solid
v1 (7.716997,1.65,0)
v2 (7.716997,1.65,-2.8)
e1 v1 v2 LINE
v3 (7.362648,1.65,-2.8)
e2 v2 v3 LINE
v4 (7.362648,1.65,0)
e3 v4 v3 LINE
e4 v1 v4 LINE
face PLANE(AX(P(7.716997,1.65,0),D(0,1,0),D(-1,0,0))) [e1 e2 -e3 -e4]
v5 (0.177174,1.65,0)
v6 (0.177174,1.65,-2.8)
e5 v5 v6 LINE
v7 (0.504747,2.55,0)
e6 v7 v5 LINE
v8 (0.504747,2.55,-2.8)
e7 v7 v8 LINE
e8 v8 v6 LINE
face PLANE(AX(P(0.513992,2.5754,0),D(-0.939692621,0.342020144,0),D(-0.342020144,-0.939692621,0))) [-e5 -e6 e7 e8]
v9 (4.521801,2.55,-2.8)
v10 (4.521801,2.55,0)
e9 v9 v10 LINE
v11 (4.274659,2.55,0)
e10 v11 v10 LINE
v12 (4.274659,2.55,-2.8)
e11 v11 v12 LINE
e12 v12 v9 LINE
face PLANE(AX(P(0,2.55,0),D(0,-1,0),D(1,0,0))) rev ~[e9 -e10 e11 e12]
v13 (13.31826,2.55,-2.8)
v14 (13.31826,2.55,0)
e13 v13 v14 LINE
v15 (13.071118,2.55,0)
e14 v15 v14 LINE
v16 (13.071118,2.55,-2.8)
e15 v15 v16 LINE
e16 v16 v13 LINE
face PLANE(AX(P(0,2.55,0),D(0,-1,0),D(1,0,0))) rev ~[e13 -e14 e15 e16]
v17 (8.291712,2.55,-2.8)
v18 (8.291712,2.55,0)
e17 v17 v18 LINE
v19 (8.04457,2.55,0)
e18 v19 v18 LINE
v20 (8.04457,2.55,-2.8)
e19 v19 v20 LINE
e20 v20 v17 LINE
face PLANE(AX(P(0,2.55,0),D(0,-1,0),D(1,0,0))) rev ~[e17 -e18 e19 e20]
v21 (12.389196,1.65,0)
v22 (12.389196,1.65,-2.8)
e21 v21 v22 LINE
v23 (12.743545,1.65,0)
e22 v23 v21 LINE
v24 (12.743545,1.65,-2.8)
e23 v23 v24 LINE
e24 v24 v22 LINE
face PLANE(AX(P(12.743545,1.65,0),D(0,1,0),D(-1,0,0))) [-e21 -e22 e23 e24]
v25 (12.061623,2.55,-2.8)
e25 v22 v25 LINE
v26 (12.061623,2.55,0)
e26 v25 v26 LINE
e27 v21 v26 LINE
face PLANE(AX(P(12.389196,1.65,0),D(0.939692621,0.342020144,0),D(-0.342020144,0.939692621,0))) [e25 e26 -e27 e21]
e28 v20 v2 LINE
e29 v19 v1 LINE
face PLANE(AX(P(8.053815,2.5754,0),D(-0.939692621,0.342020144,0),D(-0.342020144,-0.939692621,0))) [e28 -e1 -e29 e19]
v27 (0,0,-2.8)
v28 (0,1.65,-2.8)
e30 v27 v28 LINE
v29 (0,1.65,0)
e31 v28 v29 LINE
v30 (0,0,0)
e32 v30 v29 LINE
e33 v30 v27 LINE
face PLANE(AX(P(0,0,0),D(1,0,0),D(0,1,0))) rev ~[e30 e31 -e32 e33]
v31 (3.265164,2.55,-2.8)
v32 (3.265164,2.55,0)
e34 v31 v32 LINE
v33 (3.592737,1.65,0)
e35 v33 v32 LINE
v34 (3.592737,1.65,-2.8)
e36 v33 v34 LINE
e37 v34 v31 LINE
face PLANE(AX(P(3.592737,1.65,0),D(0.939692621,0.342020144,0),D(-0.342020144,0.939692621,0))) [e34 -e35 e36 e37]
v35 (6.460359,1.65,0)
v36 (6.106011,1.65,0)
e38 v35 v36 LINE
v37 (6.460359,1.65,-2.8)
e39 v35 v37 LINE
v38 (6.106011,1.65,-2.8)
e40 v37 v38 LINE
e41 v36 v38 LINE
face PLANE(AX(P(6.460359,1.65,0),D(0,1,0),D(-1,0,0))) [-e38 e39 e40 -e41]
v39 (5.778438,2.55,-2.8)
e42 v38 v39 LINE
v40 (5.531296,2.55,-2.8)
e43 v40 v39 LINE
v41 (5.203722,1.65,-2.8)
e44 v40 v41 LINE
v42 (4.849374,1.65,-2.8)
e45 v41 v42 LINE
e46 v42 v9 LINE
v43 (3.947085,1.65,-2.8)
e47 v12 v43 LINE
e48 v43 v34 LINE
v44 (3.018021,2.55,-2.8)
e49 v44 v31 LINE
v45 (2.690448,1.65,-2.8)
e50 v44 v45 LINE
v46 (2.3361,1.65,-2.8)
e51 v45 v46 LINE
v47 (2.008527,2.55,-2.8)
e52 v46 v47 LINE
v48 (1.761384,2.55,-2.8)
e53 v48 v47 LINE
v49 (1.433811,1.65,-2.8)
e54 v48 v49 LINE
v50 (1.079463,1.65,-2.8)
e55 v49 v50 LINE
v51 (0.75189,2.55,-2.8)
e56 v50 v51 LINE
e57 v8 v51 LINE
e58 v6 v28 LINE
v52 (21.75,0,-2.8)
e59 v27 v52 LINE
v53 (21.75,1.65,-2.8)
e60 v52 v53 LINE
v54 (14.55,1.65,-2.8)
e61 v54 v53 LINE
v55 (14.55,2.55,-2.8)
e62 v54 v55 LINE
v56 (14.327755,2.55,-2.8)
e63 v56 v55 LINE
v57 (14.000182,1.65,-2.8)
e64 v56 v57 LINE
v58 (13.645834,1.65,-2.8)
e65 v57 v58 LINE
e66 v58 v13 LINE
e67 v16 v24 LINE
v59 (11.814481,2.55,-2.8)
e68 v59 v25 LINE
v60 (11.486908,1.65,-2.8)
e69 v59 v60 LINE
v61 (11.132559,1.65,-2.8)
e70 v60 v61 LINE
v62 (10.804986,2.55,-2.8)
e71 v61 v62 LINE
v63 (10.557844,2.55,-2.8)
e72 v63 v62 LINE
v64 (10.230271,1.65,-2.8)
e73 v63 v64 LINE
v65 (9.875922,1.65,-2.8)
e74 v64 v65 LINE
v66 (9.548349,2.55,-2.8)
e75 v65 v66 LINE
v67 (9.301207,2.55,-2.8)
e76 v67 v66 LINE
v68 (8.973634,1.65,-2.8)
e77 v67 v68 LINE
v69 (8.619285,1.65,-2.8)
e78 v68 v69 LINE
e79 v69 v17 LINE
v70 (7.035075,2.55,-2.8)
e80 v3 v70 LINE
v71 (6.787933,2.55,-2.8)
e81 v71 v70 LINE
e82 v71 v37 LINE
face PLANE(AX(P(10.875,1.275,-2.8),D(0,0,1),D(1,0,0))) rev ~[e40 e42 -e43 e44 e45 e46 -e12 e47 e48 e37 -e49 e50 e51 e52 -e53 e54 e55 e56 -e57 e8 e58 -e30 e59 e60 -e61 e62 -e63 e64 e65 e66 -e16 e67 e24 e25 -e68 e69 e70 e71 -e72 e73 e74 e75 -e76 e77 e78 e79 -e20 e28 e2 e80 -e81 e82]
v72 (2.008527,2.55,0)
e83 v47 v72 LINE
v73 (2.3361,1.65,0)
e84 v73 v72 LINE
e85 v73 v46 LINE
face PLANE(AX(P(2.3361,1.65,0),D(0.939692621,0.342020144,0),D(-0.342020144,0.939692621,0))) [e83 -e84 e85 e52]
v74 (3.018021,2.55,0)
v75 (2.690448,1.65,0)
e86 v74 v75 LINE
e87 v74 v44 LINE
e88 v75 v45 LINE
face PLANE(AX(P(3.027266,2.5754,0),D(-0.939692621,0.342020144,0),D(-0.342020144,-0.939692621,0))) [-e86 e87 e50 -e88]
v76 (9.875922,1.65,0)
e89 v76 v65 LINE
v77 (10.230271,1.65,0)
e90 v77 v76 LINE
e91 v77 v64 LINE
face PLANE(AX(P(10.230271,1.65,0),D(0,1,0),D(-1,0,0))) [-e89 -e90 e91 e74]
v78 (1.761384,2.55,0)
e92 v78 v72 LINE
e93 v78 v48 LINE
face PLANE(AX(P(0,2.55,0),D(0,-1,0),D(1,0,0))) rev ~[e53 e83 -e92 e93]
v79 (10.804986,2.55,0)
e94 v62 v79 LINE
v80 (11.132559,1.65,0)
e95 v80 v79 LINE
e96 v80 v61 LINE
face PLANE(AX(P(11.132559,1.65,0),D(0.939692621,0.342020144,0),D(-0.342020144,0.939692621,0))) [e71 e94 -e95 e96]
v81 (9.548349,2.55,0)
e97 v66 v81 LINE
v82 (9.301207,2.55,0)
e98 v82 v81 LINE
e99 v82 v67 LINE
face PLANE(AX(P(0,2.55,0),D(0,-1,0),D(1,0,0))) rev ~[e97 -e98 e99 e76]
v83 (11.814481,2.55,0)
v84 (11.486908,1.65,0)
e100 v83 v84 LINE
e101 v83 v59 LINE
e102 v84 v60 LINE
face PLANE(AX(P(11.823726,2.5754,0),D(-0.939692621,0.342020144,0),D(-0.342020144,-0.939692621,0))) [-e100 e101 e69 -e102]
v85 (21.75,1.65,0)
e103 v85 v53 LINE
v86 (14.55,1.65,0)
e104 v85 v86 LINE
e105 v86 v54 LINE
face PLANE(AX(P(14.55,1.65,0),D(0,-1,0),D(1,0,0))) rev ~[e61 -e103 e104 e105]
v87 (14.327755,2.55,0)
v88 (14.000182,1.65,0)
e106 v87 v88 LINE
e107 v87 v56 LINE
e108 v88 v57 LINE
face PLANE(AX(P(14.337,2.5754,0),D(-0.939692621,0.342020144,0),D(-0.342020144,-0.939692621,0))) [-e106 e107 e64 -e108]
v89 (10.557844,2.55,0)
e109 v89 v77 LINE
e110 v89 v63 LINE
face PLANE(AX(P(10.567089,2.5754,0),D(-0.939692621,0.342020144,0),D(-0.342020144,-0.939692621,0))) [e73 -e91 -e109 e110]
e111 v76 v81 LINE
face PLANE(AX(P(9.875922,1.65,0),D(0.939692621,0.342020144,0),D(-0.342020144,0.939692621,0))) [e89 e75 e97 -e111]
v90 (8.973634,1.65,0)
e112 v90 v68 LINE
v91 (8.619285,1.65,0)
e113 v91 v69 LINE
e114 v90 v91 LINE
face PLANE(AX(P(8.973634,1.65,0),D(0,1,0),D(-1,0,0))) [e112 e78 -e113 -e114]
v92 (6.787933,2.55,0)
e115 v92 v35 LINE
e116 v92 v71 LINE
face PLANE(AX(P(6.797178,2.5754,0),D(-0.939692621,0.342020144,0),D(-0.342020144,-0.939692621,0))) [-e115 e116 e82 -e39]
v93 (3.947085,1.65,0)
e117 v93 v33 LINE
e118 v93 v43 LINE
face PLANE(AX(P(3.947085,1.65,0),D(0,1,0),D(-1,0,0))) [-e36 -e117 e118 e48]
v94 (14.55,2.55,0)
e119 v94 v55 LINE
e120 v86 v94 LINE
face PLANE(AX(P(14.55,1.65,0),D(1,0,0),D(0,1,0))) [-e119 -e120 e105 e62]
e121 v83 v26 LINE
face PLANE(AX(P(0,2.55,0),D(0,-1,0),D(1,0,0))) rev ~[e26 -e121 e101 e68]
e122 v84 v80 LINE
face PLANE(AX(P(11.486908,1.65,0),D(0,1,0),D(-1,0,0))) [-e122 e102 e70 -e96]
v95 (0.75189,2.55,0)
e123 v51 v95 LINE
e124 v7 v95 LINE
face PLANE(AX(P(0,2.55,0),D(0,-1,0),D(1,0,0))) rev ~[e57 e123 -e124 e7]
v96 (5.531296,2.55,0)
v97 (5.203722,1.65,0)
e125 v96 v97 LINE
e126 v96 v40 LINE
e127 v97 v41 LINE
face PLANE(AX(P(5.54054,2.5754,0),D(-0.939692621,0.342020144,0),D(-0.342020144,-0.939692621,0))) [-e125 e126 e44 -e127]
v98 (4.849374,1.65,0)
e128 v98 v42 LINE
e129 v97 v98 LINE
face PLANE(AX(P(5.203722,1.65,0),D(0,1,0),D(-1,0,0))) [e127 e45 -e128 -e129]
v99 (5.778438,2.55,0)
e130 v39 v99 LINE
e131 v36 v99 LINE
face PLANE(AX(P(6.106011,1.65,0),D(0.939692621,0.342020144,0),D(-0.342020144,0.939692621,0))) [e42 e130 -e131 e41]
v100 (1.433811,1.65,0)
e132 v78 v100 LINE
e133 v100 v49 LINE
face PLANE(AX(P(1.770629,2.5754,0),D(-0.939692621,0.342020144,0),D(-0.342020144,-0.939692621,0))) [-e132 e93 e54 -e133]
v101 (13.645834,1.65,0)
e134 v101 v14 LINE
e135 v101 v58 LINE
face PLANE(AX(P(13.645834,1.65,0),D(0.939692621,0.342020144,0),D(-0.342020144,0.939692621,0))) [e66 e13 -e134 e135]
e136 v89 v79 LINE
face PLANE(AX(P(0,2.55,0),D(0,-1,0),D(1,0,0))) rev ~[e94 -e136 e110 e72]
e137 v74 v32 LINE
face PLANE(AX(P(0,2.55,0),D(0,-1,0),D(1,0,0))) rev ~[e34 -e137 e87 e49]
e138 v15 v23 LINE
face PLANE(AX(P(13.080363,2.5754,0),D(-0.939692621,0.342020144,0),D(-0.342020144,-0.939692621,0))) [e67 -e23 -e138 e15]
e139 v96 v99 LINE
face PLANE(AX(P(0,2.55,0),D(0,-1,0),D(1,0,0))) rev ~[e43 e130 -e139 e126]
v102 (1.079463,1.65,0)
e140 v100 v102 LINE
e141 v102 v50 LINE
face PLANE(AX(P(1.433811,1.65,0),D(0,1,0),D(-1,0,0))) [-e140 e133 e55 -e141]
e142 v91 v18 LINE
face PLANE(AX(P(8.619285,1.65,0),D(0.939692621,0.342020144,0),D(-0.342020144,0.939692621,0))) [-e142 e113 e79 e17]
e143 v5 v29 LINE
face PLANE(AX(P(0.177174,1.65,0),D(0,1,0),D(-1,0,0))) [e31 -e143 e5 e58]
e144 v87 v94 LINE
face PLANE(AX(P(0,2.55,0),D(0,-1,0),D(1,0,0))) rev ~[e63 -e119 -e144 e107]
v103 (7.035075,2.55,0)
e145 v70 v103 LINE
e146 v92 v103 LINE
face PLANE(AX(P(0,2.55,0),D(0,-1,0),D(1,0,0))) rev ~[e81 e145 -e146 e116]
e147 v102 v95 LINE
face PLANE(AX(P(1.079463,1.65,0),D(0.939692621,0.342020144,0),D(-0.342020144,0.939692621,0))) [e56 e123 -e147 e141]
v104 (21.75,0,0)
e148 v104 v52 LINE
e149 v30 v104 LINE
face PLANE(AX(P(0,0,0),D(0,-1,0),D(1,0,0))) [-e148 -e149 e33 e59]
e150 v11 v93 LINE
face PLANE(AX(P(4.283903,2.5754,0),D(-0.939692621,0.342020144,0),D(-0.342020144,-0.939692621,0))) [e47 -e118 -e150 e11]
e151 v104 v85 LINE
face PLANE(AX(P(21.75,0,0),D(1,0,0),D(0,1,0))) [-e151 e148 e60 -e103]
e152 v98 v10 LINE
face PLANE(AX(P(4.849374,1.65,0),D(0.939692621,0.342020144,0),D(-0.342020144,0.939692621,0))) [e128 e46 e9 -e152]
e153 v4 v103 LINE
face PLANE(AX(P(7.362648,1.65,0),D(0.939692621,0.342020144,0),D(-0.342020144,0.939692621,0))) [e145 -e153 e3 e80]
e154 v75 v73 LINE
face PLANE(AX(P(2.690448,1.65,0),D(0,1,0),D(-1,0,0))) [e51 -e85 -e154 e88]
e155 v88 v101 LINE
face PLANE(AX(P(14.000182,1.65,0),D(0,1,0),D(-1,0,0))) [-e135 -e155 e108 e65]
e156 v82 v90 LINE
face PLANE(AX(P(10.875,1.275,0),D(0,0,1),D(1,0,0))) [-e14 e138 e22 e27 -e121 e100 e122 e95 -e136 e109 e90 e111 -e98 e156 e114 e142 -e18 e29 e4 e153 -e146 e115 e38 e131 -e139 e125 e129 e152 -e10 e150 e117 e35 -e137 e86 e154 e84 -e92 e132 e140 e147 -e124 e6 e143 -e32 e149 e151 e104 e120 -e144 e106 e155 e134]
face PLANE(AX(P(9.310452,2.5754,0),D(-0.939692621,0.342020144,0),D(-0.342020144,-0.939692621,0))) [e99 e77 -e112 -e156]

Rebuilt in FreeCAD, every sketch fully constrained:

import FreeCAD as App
import Part
import Sketcher
from FreeCAD import Vector
Q = App.Units.Quantity

doc = App.newDocument("Part")
body = doc.addObject("PartDesign::Body", "Body")

sketch1 = body.newObject("Sketcher::SketchObject", "Sketch")
sketch1.AttachmentSupport = (doc.getObject("XY_Plane"), [""])
sketch1.MapMode = "FlatFace"
sketch1.addGeometry([
    Part.LineSegment(Vector(0, 2.5, 0), Vector(0, 0, 0)),
    Part.LineSegment(Vector(0, 0, 0), Vector(21.8, 0, 0)),
    Part.LineSegment(Vector(21.8, 0, 0), Vector(21.8, 2.5, 0)),
    Part.LineSegment(Vector(21.8, 2.5, 0), Vector(0, 2.5, 0)),
], False)
sketch1.addConstraint([
    Sketcher.Constraint("Coincident", 0, 2, 1, 1),
    Sketcher.Constraint("Coincident", 1, 2, 2, 1),
    Sketcher.Constraint("Coincident", 2, 2, 3, 1),
    Sketcher.Constraint("Coincident", 3, 2, 0, 1),
    Sketcher.Constraint("Vertical", 0),
    Sketcher.Constraint("Horizontal", 1),
    Sketcher.Constraint("Vertical", 2),
    Sketcher.Constraint("Horizontal", 3),
    Sketcher.Constraint("Coincident", 0, 2, -1, 1),
    Sketcher.Constraint("DistanceX", 1, 1, 1, 2, Q("21.75 mm")),
    Sketcher.Constraint("DistanceY", 0, 2, 0, 1, Q("2.55 mm")),
])
pad1 = body.newObject("PartDesign::Pad", "Pad")
pad1.Profile = sketch1
pad1.Length = 2.8
pad1.Reversed = True

sketch2 = body.newObject("Sketcher::SketchObject", "Sketch001")
sketch2.AttachmentSupport = (doc.getObject("XY_Plane"), [""])
sketch2.MapMode = "FlatFace"
sketch2.addGeometry([
    Part.LineSegment(Vector(-0.18, 1.65, 0), Vector(0.18, 1.65, 0)),
    Part.LineSegment(Vector(0.18, 1.65, 0), Vector(0.51, 2.58, 0)),
    Part.LineSegment(Vector(0.51, 2.58, 0), Vector(-0.51, 2.58, 0)),
    Part.LineSegment(Vector(-0.51, 2.58, 0), Vector(-0.18, 1.65, 0)),
], False)
sketch2.addConstraint([
    Sketcher.Constraint("Coincident", 0, 2, 1, 1),
    Sketcher.Constraint("Coincident", 1, 2, 2, 1),
    Sketcher.Constraint("Coincident", 2, 2, 3, 1),
    Sketcher.Constraint("Coincident", 3, 2, 0, 1),
    Sketcher.Constraint("Horizontal", 0),
    Sketcher.Constraint("Horizontal", 2),
    Sketcher.Constraint("Equal", 1, 3),
    Sketcher.Constraint("Angle", 1, Q("70 deg")),
    Sketcher.Constraint("DistanceY", -1, 1, 0, 2, Q("1.65 mm")),
    Sketcher.Constraint("DistanceX", 0, 1, 0, 2, Q("0.354348 mm")),
    Sketcher.Constraint("DistanceY", -1, 1, 1, 2, Q("2.5754 mm")),
    Sketcher.Constraint("DistanceX", -1, 1, 0, 2, Q("0.177174 mm")),
])
pocket1 = body.newObject("PartDesign::Pocket", "Pocket")
pocket1.Profile = sketch2
pocket1.Type = "ThroughAll"
doc.recompute()

linearpattern = body.newObject("PartDesign::LinearPattern", "LinearPattern")
linearpattern.Originals = [pocket1]
linearpattern.Direction = (doc.getObject("X_Axis"), [""])
linearpattern.Mode = "offset"
linearpattern.Offset = 1.256637
linearpattern.Occurrences = 18
body.Tip = linearpattern

sketch3 = body.newObject("Sketcher::SketchObject", "Sketch002")
sketch3.AttachmentSupport = (doc.getObject("XY_Plane"), [""])
sketch3.MapMode = "FlatFace"
sketch3.addGeometry([
    Part.LineSegment(Vector(14.6, 2.5, 0), Vector(14.6, 1.6, 0)),
    Part.LineSegment(Vector(14.6, 1.6, 0), Vector(21.8, 1.6, 0)),
    Part.LineSegment(Vector(21.8, 1.6, 0), Vector(21.8, 2.5, 0)),
    Part.LineSegment(Vector(21.8, 2.5, 0), Vector(14.6, 2.5, 0)),
], False)
sketch3.addConstraint([
    Sketcher.Constraint("Coincident", 0, 2, 1, 1),
    Sketcher.Constraint("Coincident", 1, 2, 2, 1),
    Sketcher.Constraint("Coincident", 2, 2, 3, 1),
    Sketcher.Constraint("Coincident", 3, 2, 0, 1),
    Sketcher.Constraint("Vertical", 0),
    Sketcher.Constraint("Horizontal", 1),
    Sketcher.Constraint("Vertical", 2),
    Sketcher.Constraint("Horizontal", 3),
    Sketcher.Constraint("DistanceX", 1, 1, 1, 2, Q("7.2 mm")),
    Sketcher.Constraint("DistanceY", 0, 2, 0, 1, Q("0.9 mm")),
    Sketcher.Constraint("DistanceX", -1, 1, 0, 2, Q("14.55 mm")),
    Sketcher.Constraint("DistanceY", -1, 1, 0, 2, Q("1.65 mm")),
])
pocket2 = body.newObject("PartDesign::Pocket", "Pocket001")
pocket2.Profile = sketch3
pocket2.Type = "ThroughAll"

doc.recompute()
